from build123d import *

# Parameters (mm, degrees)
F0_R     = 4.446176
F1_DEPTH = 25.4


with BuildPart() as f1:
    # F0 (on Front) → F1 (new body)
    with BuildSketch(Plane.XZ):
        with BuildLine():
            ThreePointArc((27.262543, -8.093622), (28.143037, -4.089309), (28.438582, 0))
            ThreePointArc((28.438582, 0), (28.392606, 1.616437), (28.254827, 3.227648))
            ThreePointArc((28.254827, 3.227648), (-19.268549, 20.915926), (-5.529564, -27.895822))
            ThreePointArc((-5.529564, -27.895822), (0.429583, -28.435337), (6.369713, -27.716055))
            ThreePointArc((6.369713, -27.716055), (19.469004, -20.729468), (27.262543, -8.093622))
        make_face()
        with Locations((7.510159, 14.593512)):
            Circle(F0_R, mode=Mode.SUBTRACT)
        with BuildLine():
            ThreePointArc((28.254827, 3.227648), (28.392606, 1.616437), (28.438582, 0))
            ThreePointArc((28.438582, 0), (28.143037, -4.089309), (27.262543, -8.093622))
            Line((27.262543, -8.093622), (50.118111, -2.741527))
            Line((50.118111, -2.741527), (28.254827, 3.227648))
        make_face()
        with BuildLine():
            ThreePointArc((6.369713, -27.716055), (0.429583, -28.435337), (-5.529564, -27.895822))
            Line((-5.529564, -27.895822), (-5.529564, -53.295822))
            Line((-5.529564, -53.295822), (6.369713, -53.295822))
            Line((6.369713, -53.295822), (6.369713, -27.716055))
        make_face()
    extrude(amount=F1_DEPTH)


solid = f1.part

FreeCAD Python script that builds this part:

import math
import FreeCAD as App
import Part
import Sketcher
from FreeCAD import Vector
Q = App.Units.Quantity

doc = App.newDocument("Part")
body = doc.addObject("PartDesign::Body", "Body")

# Sketch on XZ plane
sketch1 = body.newObject("Sketcher::SketchObject", "Sketch")
sketch1.AttachmentSupport = (doc.getObject("XZ_Plane"), [""])
sketch1.MapMode = "FlatFace"
sketch1.addGeometry([
    Part.ArcOfCircle(Part.Circle(Vector(0, 0, 0), Vector(0, 0, 1), 28.438582), math.radians(-77.057014), math.radians(-16.534944)),  # 0
    Part.LineSegment(Vector(27.262543, -8.093622, 0), Vector(50.118111, -2.741527, 0)),  # 1
    Part.LineSegment(Vector(50.118111, -2.741527, 0), Vector(28.254827, 3.227648, 0)),  # 2
    Part.ArcOfCircle(Part.Circle(Vector(0, 0, 0), Vector(0, 0, 1), 28.438582), math.radians(6.516849), math.radians(258.788058)),  # 3
    Part.LineSegment(Vector(-5.529564, -27.895822, 0), Vector(-5.529564, -53.295822, 0)),  # 4
    Part.LineSegment(Vector(-5.529564, -53.295822, 0), Vector(6.369713, -53.295822, 0)),  # 5
    Part.LineSegment(Vector(6.369713, -53.295822, 0), Vector(6.369713, -27.716055, 0)),  # 6
    Part.Circle(Vector(7.510159, 14.593512, 0), Vector(0, 0, 1), 4.446176),  # 7
], False)
sketch1.addConstraint([
    Sketcher.Constraint("Coincident", 0, 2, 1, 1),
    Sketcher.Constraint("Coincident", 1, 2, 2, 1),
    Sketcher.Constraint("Coincident", 2, 2, 3, 1),
    Sketcher.Constraint("Coincident", 3, 2, 4, 1),
    Sketcher.Constraint("Coincident", 4, 2, 5, 1),
    Sketcher.Constraint("Coincident", 5, 2, 6, 1),
    Sketcher.Constraint("Coincident", 6, 2, 0, 1),
    Sketcher.Constraint("Vertical", 4),
    Sketcher.Constraint("Horizontal", 5),
    Sketcher.Constraint("Vertical", 6),
    Sketcher.Constraint("Coincident", 0, 3, -1, 1),
    Sketcher.Constraint("Coincident", 3, 3, -1, 1),
    Sketcher.Constraint("Equal", 0, 3),
    Sketcher.Constraint("DistanceY", 4, 2, 4, 1, Q("1 in")),
    Sketcher.Constraint("Radius", 0, Q("28.438582 mm")),
    Sketcher.Constraint("Diameter", 7, Q("8.892352 mm")),
    Sketcher.Constraint("Distance", 2, Q("22.6635 mm")),
    Sketcher.Constraint("DistanceY", 3, 2, 0, 2, Q("19.8022 mm")),
    Sketcher.Constraint("DistanceX", 5, 1, 5, 2, Q("11.899277 mm")),
    Sketcher.Constraint("DistanceY", 6, 1, 6, 2, Q("25.579767 mm")),
    Sketcher.Constraint("DistanceX", -1, 1, 7, 3, Q("7.510159 mm")),
    Sketcher.Constraint("DistanceX", -1, 1, 1, 2, Q("50.118111 mm")),
    Sketcher.Constraint("DistanceY", 0, 3, 7, 3, Q("14.593512 mm")),
    Sketcher.Constraint("DistanceY", 1, 2, 7, 3, Q("17.335039 mm")),
])
pad1 = body.newObject("PartDesign::Pad", "Pad")
pad1.Profile = sketch1
pad1.Length = Q("1 in")

doc.recompute()
